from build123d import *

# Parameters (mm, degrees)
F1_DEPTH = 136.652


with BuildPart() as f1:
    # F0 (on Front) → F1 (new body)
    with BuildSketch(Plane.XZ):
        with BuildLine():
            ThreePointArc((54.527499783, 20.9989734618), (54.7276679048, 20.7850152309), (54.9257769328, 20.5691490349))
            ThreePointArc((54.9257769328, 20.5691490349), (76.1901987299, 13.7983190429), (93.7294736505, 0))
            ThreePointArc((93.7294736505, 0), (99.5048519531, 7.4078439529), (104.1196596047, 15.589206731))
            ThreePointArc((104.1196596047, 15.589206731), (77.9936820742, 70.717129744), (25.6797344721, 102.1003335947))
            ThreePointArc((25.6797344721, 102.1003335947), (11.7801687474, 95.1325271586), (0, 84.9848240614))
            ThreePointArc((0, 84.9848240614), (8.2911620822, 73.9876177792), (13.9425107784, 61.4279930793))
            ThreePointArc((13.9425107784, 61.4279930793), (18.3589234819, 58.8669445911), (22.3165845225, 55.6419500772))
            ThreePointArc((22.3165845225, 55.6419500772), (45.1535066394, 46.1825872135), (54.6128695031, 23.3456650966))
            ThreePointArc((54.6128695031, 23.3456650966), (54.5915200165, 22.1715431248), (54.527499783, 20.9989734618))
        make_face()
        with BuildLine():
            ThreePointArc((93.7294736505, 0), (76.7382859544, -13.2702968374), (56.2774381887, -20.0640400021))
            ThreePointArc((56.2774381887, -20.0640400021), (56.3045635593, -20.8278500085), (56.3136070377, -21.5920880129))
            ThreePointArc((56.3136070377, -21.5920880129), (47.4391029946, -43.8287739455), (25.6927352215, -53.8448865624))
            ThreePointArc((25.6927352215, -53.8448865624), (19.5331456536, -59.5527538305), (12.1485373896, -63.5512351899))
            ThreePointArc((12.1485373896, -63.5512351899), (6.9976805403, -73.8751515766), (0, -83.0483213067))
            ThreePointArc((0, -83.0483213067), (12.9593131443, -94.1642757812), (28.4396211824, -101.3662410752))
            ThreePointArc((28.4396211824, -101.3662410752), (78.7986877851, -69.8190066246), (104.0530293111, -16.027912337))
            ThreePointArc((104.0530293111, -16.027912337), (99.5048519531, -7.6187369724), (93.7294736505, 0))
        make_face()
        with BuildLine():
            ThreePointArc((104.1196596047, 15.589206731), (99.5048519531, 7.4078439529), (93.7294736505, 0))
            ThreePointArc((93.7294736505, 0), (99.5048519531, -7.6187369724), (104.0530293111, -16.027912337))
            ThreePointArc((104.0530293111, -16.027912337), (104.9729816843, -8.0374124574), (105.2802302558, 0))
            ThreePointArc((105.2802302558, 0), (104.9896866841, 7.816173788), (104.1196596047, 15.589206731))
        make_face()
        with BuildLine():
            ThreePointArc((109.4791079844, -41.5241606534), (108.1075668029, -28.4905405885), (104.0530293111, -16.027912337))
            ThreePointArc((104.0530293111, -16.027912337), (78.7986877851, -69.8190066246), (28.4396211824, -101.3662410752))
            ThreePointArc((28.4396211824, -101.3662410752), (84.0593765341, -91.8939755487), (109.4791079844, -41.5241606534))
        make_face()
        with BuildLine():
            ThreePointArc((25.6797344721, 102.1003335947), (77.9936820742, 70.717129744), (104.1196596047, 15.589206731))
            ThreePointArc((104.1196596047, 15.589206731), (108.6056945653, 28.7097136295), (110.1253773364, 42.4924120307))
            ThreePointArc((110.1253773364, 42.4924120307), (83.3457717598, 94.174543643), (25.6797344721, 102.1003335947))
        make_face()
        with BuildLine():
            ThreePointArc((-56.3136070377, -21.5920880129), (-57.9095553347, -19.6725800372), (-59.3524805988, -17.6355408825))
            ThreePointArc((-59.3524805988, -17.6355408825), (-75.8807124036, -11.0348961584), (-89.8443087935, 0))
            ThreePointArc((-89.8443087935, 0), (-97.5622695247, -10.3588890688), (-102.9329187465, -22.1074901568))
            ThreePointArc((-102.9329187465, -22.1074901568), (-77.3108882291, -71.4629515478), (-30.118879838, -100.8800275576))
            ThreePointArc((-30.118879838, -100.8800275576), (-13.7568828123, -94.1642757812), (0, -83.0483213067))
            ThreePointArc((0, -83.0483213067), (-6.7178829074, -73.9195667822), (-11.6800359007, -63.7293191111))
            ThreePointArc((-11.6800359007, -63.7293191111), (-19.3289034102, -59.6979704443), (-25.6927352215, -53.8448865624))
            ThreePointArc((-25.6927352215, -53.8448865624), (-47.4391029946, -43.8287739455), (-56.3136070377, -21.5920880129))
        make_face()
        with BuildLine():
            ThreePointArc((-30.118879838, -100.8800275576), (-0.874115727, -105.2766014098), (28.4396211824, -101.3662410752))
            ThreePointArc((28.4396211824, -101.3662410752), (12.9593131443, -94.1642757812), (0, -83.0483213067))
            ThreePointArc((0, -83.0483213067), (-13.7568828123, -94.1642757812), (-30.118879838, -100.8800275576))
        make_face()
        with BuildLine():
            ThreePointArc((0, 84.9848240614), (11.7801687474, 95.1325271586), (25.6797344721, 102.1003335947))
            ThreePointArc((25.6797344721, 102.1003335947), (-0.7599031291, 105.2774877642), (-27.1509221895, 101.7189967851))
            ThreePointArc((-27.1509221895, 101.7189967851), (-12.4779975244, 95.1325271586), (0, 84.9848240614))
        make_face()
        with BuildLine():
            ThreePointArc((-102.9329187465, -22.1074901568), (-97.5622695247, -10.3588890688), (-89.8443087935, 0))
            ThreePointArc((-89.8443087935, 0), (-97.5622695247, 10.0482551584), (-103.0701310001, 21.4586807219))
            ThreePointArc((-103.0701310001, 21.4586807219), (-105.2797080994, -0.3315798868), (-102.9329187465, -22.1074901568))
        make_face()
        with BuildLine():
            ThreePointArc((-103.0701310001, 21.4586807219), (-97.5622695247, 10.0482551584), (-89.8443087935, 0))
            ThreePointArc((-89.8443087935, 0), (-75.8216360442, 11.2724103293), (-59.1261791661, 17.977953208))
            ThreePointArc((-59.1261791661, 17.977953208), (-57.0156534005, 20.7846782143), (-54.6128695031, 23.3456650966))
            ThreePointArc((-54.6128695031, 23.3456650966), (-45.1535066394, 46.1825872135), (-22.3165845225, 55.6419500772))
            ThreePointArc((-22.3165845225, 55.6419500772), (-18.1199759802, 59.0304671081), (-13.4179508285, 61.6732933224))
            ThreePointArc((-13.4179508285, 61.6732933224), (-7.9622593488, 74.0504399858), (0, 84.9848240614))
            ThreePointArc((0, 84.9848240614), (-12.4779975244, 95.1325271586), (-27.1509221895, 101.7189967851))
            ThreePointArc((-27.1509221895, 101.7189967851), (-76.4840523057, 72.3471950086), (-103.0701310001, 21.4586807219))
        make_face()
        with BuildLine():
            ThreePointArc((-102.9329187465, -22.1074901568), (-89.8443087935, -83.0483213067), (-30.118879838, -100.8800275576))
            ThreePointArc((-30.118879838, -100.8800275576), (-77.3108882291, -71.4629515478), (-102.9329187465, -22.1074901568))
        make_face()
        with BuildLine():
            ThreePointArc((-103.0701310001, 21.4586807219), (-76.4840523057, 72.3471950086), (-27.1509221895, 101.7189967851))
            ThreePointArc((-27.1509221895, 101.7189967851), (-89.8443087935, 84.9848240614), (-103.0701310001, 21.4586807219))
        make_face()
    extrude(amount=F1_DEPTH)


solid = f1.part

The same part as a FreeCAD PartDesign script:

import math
import FreeCAD as App
import Part
import Sketcher
from FreeCAD import Vector
Q = App.Units.Quantity

doc = App.newDocument("Part")
body = doc.addObject("PartDesign::Body", "Body")

sketch1 = doc.addObject("Sketcher::SketchObject", "Sketch")
body.addObject(sketch1)
sketch1.AttachmentSupport = (doc.XZ_Plane, [""])
sketch1.MapMode = "FlatFace"
sketch1.addGeometry(Part.ArcOfCircle(Part.Circle(Vector(0, 0, 0), Vector(0, 0, 1), 105.3), math.radians(168), math.radians(192)), False)
sketch1.addGeometry(Part.ArcOfCircle(Part.Circle(Vector(-44.9, -41.5, 0), Vector(0, 0, 1), 61.2), math.radians(161), math.radians(284)), False)
sketch1.addGeometry(Part.ArcOfCircle(Part.Circle(Vector(0, 0, 0), Vector(0, 0, 1), 105.3), math.radians(-107), math.radians(-74)), False)
sketch1.addGeometry(Part.ArcOfCircle(Part.Circle(Vector(46.9, -41.5, 0), Vector(0, 0, 1), 62.6), math.radians(-107), math.radians(0)), False)
sketch1.addGeometry(Part.ArcOfCircle(Part.Circle(Vector(46.9, -41.5, 0), Vector(0, 0, 1), 62.6), math.radians(0), math.radians(24)), False)
sketch1.addGeometry(Part.ArcOfCircle(Part.Circle(Vector(0, 0, 0), Vector(0, 0, 1), 105.3), math.radians(-8.76), math.radians(0)), False)
sketch1.addGeometry(Part.ArcOfCircle(Part.Circle(Vector(0, 0, 0), Vector(0, 0, 1), 105.3), math.radians(0), math.radians(8.52)), False)
sketch1.addGeometry(Part.ArcOfCircle(Part.Circle(Vector(46.9, 42.5, 0), Vector(0, 0, 1), 63.3), math.radians(-25), math.radians(0)), False)
sketch1.addGeometry(Part.ArcOfCircle(Part.Circle(Vector(46.9, 42.5, 0), Vector(0, 0, 1), 63.3), math.radians(0), math.radians(110)), False)
sketch1.addGeometry(Part.ArcOfCircle(Part.Circle(Vector(0, 0, 0), Vector(0, 0, 1), 105.3), math.radians(76), math.radians(105)), False)
sketch1.addGeometry(Part.ArcOfCircle(Part.Circle(Vector(-44.9, 42.5, 0), Vector(0, 0, 1), 61.8), math.radians(73), math.radians(200)), False)
sketch1.addGeometry(Part.ArcOfCircle(Part.Circle(Vector(32.3, 0, 0), Vector(0, 0, 1), 30.6), math.radians(42.27), math.radians(43.37)), False)
sketch1.addGeometry(Part.ArcOfCircle(Part.Circle(Vector(46.9, -41.5, 0), Vector(0, 0, 1), 62.6), math.radians(42), math.radians(83)), False)
sketch1.addGeometry(Part.ArcOfCircle(Part.Circle(Vector(46.9, 42.5, 0), Vector(0, 0, 1), 63.3), math.radians(-81), math.radians(-42)), False)
sketch1.addGeometry(Part.ArcOfCircle(Part.Circle(Vector(24, -21.6, 0), Vector(0, 0, 1), 32.3), math.radians(0), math.radians(2.71)), False)
sketch1.addGeometry(Part.ArcOfCircle(Part.Circle(Vector(24, -21.6, 0), Vector(0, 0, 1), 32.3), math.radians(-87), math.radians(0)), False)
sketch1.addGeometry(Part.ArcOfCircle(Part.Circle(Vector(0, -32.3, 0), Vector(0, 0, 1), 33.5), math.radians(-69), math.radians(-40)), False)
sketch1.addGeometry(Part.ArcOfCircle(Part.Circle(Vector(-44.9, -41.5, 0), Vector(0, 0, 1), 61.2), math.radians(-43), math.radians(-21)), False)
sketch1.addGeometry(Part.ArcOfCircle(Part.Circle(Vector(46.9, -41.5, 0), Vector(0, 0, 1), 62.6), math.radians(-159), math.radians(-138)), False)
sketch1.addGeometry(Part.ArcOfCircle(Part.Circle(Vector(0, -32.3, 0), Vector(0, 0, 1), 33.5), math.radians(-140), math.radians(-110)), False)
sketch1.addGeometry(Part.ArcOfCircle(Part.Circle(Vector(-24, -21.6, 0), Vector(0, 0, 1), 32.3), math.radians(180), math.radians(267)), False)
sketch1.addGeometry(Part.ArcOfCircle(Part.Circle(Vector(-32.3, 0, 0), Vector(0, 0, 1), 32.3), math.radians(-146.9), math.radians(-138.04)), False)
sketch1.addGeometry(Part.ArcOfCircle(Part.Circle(Vector(-44.9, 42.5, 0), Vector(0, 0, 1), 61.8), math.radians(-137), math.radians(-103)), False)
sketch1.addGeometry(Part.ArcOfCircle(Part.Circle(Vector(-44.9, -41.5, 0), Vector(0, 0, 1), 61.2), math.radians(103), math.radians(137)), False)
sketch1.addGeometry(Part.ArcOfCircle(Part.Circle(Vector(-32.3, 0, 0), Vector(0, 0, 1), 32.3), math.radians(133.71), math.radians(146.18)), False)
sketch1.addGeometry(Part.ArcOfCircle(Part.Circle(Vector(-22.3, 23.3, 0), Vector(0, 0, 1), 32.3), math.radians(90), math.radians(180)), False)
sketch1.addGeometry(Part.ArcOfCircle(Part.Circle(Vector(0, 32.3, 0), Vector(0, 0, 1), 32.3), math.radians(114.55), math.radians(133.71)), False)
sketch1.addGeometry(Part.ArcOfCircle(Part.Circle(Vector(46.9, 42.5, 0), Vector(0, 0, 1), 63.3), math.radians(138), math.radians(162)), False)
sketch1.addGeometry(Part.ArcOfCircle(Part.Circle(Vector(-44.9, 42.5, 0), Vector(0, 0, 1), 61.8), math.radians(18), math.radians(43)), False)
sketch1.addGeometry(Part.ArcOfCircle(Part.Circle(Vector(0, 32.3, 0), Vector(0, 0, 1), 32.3), math.radians(46.29), math.radians(64.42)), False)
sketch1.addGeometry(Part.ArcOfCircle(Part.Circle(Vector(22.3, 23.3, 0), Vector(0, 0, 1), 32.3), math.radians(0), math.radians(90)), False)
sketch1.addGeometry(Part.ArcOfCircle(Part.Circle(Vector(22.3, 23.3, 0), Vector(0, 0, 1), 32.3), math.radians(-4.17), math.radians(0)), False)
sketch1.addConstraint(Sketcher.Constraint("Coincident", 0, 2, 1, 1))
sketch1.addConstraint(Sketcher.Constraint("Coincident", 1, 2, 2, 1))
sketch1.addConstraint(Sketcher.Constraint("Coincident", 2, 2, 3, 1))
sketch1.addConstraint(Sketcher.Constraint("Tangent", 3, 2, 4, 1))
sketch1.addConstraint(Sketcher.Constraint("Coincident", 4, 2, 5, 1))
sketch1.addConstraint(Sketcher.Constraint("Tangent", 5, 2, 6, 1))
sketch1.addConstraint(Sketcher.Constraint("Coincident", 6, 2, 7, 1))
sketch1.addConstraint(Sketcher.Constraint("Tangent", 7, 2, 8, 1))
sketch1.addConstraint(Sketcher.Constraint("Coincident", 8, 2, 9, 1))
sketch1.addConstraint(Sketcher.Constraint("Coincident", 9, 2, 10, 1))
sketch1.addConstraint(Sketcher.Constraint("Coincident", 10, 2, 0, 1))
sketch1.addConstraint(Sketcher.Constraint("Coincident", 11, 1, 12, 2))
sketch1.addConstraint(Sketcher.Constraint("Coincident", 12, 1, 13, 2))
sketch1.addConstraint(Sketcher.Constraint("Coincident", 13, 1, 14, 2))
sketch1.addConstraint(Sketcher.Constraint("Tangent", 14, 1, 15, 2))
sketch1.addConstraint(Sketcher.Constraint("Coincident", 15, 1, 16, 2))
sketch1.addConstraint(Sketcher.Constraint("Coincident", 16, 1, 17, 2))
sketch1.addConstraint(Sketcher.Constraint("Coincident", 17, 1, 18, 2))
sketch1.addConstraint(Sketcher.Constraint("Coincident", 18, 1, 19, 2))
sketch1.addConstraint(Sketcher.Constraint("Coincident", 19, 1, 20, 2))
sketch1.addConstraint(Sketcher.Constraint("Coincident", 20, 1, 21, 2))
sketch1.addConstraint(Sketcher.Constraint("Coincident", 21, 1, 22, 2))
sketch1.addConstraint(Sketcher.Constraint("Coincident", 22, 1, 23, 2))
sketch1.addConstraint(Sketcher.Constraint("Coincident", 23, 1, 24, 2))
sketch1.addConstraint(Sketcher.Constraint("Coincident", 24, 1, 25, 2))
sketch1.addConstraint(Sketcher.Constraint("Coincident", 25, 1, 26, 2))
sketch1.addConstraint(Sketcher.Constraint("Coincident", 26, 1, 27, 2))
sketch1.addConstraint(Sketcher.Constraint("Coincident", 27, 1, 28, 2))
sketch1.addConstraint(Sketcher.Constraint("Coincident", 28, 1, 29, 2))
sketch1.addConstraint(Sketcher.Constraint("Coincident", 29, 1, 30, 2))
sketch1.addConstraint(Sketcher.Constraint("Tangent", 30, 1, 31, 2))
sketch1.addConstraint(Sketcher.Constraint("Coincident", 31, 1, 11, 2))
sketch1.addConstraint(Sketcher.Constraint("Coincident", 0, 3, -1, 1))
sketch1.addConstraint(Sketcher.Constraint("Coincident", 2, 3, -1, 1))
sketch1.addConstraint(Sketcher.Constraint("Coincident", 5, 3, -1, 1))
sketch1.addConstraint(Sketcher.Constraint("Coincident", 9, 3, -1, 1))
sketch1.addConstraint(Sketcher.Constraint("Coincident", 12, 3, 3, 3))
sketch1.addConstraint(Sketcher.Constraint("Coincident", 13, 3, 7, 3))
sketch1.addConstraint(Sketcher.Constraint("Coincident", 17, 3, 1, 3))
sketch1.addConstraint(Sketcher.Constraint("Coincident", 18, 3, 3, 3))
sketch1.addConstraint(Sketcher.Constraint("Coincident", 19, 3, 16, 3))
sketch1.addConstraint(Sketcher.Constraint("Coincident", 22, 3, 10, 3))
sketch1.addConstraint(Sketcher.Constraint("Coincident", 23, 3, 1, 3))
sketch1.addConstraint(Sketcher.Constraint("Coincident", 24, 3, 21, 3))
sketch1.addConstraint(Sketcher.Constraint("Coincident", 27, 3, 7, 3))
sketch1.addConstraint(Sketcher.Constraint("Coincident", 28, 3, 10, 3))
sketch1.addConstraint(Sketcher.Constraint("Coincident", 29, 3, 26, 3))
sketch1.addConstraint(Sketcher.Constraint("Equal", 0, 2))
sketch1.addConstraint(Sketcher.Constraint("Equal", 3, 4))
sketch1.addConstraint(Sketcher.Constraint("Equal", 2, 5))
sketch1.addConstraint(Sketcher.Constraint("Equal", 5, 6))
sketch1.addConstraint(Sketcher.Constraint("Equal", 7, 8))
sketch1.addConstraint(Sketcher.Constraint("Equal", 6, 9))
sketch1.addConstraint(Sketcher.Constraint("Equal", 4, 12))
sketch1.addConstraint(Sketcher.Constraint("Equal", 8, 13))
sketch1.addConstraint(Sketcher.Constraint("Equal", 14, 15))
sketch1.addConstraint(Sketcher.Constraint("Equal", 1, 17))
sketch1.addConstraint(Sketcher.Constraint("Equal", 12, 18))
sketch1.addConstraint(Sketcher.Constraint("Equal", 16, 19))
sketch1.addConstraint(Sketcher.Constraint("Equal", 15, 20))
sketch1.addConstraint(Sketcher.Constraint("Equal", 20, 21))
sketch1.addConstraint(Sketcher.Constraint("Equal", 10, 22))
sketch1.addConstraint(Sketcher.Constraint("Equal", 17, 23))
sketch1.addConstraint(Sketcher.Constraint("Equal", 21, 24))
sketch1.addConstraint(Sketcher.Constraint("Equal", 24, 25))
sketch1.addConstraint(Sketcher.Constraint("Equal", 25, 26))
sketch1.addConstraint(Sketcher.Constraint("Equal", 13, 27))
sketch1.addConstraint(Sketcher.Constraint("Equal", 22, 28))
sketch1.addConstraint(Sketcher.Constraint("Equal", 26, 29))
sketch1.addConstraint(Sketcher.Constraint("Equal", 29, 30))
sketch1.addConstraint(Sketcher.Constraint("Equal", 30, 31))
sketch1.addConstraint(Sketcher.Constraint("Symmetric", 11, 3, 21, 3, -1, 1))
sketch1.addConstraint(Sketcher.Constraint("Symmetric", 16, 3, 26, 3, -1, 1))
sketch1.addConstraint(Sketcher.Constraint("Symmetric", 14, 3, 20, 3, -2))
sketch1.addConstraint(Sketcher.Constraint("Symmetric", 25, 3, 30, 3, -2))
sketch1.addConstraint(Sketcher.Constraint("PointOnObject", 11, 3, -1))
sketch1.addConstraint(Sketcher.Constraint("PointOnObject", 16, 3, -2))
sketch1.addConstraint(Sketcher.Constraint("PointOnObject", 5, 2, -1))
sketch1.addConstraint(Sketcher.Constraint("PointOnObject", 12, 1, -1))
sketch1.addConstraint(Sketcher.Constraint("PointOnObject", 17, 1, -2))
sketch1.addConstraint(Sketcher.Constraint("PointOnObject", 22, 1, -1))
sketch1.addConstraint(Sketcher.Constraint("PointOnObject", 27, 1, -2))
sketch1.addConstraint(Sketcher.Constraint("Horizontal", 1, 3, 3, 3))
sketch1.addConstraint(Sketcher.Constraint("Horizontal", 8, 3, 10, 3))
sketch1.addConstraint(Sketcher.Constraint("Horizontal", 23, 3, 3, 2))
sketch1.addConstraint(Sketcher.Constraint("Horizontal", 28, 3, 7, 2))
sketch1.addConstraint(Sketcher.Constraint("Horizontal", 20, 3, 14, 1))
sketch1.addConstraint(Sketcher.Constraint("Horizontal", 14, 1, 20, 1))
sketch1.addConstraint(Sketcher.Constraint("Horizontal", 31, 3, 24, 1))
sketch1.addConstraint(Sketcher.Constraint("Horizontal", 24, 1, 30, 1))
sketch1.addConstraint(Sketcher.Constraint("Vertical", 4, 3, 7, 3))
sketch1.addConstraint(Sketcher.Constraint("Vertical", 31, 3, 29, 1))
sketch1.addConstraint(Sketcher.Constraint("Radius", 0, Q("105.28023 mm")))
sketch1.addConstraint(Sketcher.Constraint("Radius", 1, Q("61.17398 mm")))
sketch1.addConstraint(Sketcher.Constraint("Radius", 3, Q("62.614371 mm")))
sketch1.addConstraint(Sketcher.Constraint("Radius", 7, Q("63.260641 mm")))
sketch1.addConstraint(Sketcher.Constraint("Radius", 11, Q("30.580774 mm")))
sketch1.addConstraint(Sketcher.Constraint("Radius", 14, Q("32.296285 mm")))
sketch1.addConstraint(Sketcher.Constraint("Radius", 16, Q("33.532952 mm")))
sketch1.addConstraint(Sketcher.Constraint("DistanceX", -1, 1, 31, 1, Q("54.5275 mm")))
sketch1.addConstraint(Sketcher.Constraint("DistanceY", 1, 3, -1, 1, Q("41.524161 mm")))
sketch1.addConstraint(Sketcher.Constraint("DistanceY", 14, 3, -1, 1, Q("21.592088 mm")))
sketch1.addConstraint(Sketcher.Constraint("DistanceX", 0, 2, -1, 1, Q("102.932919 mm")))
sketch1.addConstraint(Sketcher.Constraint("DistanceX", -1, 1, 13, 1, Q("56.277438 mm")))
pad1 = doc.addObject("PartDesign::Pad", "Pad")
body.addObject(pad1)
pad1.Profile = sketch1
pad1.Length = Q("5.38 in")

doc.recompute()
